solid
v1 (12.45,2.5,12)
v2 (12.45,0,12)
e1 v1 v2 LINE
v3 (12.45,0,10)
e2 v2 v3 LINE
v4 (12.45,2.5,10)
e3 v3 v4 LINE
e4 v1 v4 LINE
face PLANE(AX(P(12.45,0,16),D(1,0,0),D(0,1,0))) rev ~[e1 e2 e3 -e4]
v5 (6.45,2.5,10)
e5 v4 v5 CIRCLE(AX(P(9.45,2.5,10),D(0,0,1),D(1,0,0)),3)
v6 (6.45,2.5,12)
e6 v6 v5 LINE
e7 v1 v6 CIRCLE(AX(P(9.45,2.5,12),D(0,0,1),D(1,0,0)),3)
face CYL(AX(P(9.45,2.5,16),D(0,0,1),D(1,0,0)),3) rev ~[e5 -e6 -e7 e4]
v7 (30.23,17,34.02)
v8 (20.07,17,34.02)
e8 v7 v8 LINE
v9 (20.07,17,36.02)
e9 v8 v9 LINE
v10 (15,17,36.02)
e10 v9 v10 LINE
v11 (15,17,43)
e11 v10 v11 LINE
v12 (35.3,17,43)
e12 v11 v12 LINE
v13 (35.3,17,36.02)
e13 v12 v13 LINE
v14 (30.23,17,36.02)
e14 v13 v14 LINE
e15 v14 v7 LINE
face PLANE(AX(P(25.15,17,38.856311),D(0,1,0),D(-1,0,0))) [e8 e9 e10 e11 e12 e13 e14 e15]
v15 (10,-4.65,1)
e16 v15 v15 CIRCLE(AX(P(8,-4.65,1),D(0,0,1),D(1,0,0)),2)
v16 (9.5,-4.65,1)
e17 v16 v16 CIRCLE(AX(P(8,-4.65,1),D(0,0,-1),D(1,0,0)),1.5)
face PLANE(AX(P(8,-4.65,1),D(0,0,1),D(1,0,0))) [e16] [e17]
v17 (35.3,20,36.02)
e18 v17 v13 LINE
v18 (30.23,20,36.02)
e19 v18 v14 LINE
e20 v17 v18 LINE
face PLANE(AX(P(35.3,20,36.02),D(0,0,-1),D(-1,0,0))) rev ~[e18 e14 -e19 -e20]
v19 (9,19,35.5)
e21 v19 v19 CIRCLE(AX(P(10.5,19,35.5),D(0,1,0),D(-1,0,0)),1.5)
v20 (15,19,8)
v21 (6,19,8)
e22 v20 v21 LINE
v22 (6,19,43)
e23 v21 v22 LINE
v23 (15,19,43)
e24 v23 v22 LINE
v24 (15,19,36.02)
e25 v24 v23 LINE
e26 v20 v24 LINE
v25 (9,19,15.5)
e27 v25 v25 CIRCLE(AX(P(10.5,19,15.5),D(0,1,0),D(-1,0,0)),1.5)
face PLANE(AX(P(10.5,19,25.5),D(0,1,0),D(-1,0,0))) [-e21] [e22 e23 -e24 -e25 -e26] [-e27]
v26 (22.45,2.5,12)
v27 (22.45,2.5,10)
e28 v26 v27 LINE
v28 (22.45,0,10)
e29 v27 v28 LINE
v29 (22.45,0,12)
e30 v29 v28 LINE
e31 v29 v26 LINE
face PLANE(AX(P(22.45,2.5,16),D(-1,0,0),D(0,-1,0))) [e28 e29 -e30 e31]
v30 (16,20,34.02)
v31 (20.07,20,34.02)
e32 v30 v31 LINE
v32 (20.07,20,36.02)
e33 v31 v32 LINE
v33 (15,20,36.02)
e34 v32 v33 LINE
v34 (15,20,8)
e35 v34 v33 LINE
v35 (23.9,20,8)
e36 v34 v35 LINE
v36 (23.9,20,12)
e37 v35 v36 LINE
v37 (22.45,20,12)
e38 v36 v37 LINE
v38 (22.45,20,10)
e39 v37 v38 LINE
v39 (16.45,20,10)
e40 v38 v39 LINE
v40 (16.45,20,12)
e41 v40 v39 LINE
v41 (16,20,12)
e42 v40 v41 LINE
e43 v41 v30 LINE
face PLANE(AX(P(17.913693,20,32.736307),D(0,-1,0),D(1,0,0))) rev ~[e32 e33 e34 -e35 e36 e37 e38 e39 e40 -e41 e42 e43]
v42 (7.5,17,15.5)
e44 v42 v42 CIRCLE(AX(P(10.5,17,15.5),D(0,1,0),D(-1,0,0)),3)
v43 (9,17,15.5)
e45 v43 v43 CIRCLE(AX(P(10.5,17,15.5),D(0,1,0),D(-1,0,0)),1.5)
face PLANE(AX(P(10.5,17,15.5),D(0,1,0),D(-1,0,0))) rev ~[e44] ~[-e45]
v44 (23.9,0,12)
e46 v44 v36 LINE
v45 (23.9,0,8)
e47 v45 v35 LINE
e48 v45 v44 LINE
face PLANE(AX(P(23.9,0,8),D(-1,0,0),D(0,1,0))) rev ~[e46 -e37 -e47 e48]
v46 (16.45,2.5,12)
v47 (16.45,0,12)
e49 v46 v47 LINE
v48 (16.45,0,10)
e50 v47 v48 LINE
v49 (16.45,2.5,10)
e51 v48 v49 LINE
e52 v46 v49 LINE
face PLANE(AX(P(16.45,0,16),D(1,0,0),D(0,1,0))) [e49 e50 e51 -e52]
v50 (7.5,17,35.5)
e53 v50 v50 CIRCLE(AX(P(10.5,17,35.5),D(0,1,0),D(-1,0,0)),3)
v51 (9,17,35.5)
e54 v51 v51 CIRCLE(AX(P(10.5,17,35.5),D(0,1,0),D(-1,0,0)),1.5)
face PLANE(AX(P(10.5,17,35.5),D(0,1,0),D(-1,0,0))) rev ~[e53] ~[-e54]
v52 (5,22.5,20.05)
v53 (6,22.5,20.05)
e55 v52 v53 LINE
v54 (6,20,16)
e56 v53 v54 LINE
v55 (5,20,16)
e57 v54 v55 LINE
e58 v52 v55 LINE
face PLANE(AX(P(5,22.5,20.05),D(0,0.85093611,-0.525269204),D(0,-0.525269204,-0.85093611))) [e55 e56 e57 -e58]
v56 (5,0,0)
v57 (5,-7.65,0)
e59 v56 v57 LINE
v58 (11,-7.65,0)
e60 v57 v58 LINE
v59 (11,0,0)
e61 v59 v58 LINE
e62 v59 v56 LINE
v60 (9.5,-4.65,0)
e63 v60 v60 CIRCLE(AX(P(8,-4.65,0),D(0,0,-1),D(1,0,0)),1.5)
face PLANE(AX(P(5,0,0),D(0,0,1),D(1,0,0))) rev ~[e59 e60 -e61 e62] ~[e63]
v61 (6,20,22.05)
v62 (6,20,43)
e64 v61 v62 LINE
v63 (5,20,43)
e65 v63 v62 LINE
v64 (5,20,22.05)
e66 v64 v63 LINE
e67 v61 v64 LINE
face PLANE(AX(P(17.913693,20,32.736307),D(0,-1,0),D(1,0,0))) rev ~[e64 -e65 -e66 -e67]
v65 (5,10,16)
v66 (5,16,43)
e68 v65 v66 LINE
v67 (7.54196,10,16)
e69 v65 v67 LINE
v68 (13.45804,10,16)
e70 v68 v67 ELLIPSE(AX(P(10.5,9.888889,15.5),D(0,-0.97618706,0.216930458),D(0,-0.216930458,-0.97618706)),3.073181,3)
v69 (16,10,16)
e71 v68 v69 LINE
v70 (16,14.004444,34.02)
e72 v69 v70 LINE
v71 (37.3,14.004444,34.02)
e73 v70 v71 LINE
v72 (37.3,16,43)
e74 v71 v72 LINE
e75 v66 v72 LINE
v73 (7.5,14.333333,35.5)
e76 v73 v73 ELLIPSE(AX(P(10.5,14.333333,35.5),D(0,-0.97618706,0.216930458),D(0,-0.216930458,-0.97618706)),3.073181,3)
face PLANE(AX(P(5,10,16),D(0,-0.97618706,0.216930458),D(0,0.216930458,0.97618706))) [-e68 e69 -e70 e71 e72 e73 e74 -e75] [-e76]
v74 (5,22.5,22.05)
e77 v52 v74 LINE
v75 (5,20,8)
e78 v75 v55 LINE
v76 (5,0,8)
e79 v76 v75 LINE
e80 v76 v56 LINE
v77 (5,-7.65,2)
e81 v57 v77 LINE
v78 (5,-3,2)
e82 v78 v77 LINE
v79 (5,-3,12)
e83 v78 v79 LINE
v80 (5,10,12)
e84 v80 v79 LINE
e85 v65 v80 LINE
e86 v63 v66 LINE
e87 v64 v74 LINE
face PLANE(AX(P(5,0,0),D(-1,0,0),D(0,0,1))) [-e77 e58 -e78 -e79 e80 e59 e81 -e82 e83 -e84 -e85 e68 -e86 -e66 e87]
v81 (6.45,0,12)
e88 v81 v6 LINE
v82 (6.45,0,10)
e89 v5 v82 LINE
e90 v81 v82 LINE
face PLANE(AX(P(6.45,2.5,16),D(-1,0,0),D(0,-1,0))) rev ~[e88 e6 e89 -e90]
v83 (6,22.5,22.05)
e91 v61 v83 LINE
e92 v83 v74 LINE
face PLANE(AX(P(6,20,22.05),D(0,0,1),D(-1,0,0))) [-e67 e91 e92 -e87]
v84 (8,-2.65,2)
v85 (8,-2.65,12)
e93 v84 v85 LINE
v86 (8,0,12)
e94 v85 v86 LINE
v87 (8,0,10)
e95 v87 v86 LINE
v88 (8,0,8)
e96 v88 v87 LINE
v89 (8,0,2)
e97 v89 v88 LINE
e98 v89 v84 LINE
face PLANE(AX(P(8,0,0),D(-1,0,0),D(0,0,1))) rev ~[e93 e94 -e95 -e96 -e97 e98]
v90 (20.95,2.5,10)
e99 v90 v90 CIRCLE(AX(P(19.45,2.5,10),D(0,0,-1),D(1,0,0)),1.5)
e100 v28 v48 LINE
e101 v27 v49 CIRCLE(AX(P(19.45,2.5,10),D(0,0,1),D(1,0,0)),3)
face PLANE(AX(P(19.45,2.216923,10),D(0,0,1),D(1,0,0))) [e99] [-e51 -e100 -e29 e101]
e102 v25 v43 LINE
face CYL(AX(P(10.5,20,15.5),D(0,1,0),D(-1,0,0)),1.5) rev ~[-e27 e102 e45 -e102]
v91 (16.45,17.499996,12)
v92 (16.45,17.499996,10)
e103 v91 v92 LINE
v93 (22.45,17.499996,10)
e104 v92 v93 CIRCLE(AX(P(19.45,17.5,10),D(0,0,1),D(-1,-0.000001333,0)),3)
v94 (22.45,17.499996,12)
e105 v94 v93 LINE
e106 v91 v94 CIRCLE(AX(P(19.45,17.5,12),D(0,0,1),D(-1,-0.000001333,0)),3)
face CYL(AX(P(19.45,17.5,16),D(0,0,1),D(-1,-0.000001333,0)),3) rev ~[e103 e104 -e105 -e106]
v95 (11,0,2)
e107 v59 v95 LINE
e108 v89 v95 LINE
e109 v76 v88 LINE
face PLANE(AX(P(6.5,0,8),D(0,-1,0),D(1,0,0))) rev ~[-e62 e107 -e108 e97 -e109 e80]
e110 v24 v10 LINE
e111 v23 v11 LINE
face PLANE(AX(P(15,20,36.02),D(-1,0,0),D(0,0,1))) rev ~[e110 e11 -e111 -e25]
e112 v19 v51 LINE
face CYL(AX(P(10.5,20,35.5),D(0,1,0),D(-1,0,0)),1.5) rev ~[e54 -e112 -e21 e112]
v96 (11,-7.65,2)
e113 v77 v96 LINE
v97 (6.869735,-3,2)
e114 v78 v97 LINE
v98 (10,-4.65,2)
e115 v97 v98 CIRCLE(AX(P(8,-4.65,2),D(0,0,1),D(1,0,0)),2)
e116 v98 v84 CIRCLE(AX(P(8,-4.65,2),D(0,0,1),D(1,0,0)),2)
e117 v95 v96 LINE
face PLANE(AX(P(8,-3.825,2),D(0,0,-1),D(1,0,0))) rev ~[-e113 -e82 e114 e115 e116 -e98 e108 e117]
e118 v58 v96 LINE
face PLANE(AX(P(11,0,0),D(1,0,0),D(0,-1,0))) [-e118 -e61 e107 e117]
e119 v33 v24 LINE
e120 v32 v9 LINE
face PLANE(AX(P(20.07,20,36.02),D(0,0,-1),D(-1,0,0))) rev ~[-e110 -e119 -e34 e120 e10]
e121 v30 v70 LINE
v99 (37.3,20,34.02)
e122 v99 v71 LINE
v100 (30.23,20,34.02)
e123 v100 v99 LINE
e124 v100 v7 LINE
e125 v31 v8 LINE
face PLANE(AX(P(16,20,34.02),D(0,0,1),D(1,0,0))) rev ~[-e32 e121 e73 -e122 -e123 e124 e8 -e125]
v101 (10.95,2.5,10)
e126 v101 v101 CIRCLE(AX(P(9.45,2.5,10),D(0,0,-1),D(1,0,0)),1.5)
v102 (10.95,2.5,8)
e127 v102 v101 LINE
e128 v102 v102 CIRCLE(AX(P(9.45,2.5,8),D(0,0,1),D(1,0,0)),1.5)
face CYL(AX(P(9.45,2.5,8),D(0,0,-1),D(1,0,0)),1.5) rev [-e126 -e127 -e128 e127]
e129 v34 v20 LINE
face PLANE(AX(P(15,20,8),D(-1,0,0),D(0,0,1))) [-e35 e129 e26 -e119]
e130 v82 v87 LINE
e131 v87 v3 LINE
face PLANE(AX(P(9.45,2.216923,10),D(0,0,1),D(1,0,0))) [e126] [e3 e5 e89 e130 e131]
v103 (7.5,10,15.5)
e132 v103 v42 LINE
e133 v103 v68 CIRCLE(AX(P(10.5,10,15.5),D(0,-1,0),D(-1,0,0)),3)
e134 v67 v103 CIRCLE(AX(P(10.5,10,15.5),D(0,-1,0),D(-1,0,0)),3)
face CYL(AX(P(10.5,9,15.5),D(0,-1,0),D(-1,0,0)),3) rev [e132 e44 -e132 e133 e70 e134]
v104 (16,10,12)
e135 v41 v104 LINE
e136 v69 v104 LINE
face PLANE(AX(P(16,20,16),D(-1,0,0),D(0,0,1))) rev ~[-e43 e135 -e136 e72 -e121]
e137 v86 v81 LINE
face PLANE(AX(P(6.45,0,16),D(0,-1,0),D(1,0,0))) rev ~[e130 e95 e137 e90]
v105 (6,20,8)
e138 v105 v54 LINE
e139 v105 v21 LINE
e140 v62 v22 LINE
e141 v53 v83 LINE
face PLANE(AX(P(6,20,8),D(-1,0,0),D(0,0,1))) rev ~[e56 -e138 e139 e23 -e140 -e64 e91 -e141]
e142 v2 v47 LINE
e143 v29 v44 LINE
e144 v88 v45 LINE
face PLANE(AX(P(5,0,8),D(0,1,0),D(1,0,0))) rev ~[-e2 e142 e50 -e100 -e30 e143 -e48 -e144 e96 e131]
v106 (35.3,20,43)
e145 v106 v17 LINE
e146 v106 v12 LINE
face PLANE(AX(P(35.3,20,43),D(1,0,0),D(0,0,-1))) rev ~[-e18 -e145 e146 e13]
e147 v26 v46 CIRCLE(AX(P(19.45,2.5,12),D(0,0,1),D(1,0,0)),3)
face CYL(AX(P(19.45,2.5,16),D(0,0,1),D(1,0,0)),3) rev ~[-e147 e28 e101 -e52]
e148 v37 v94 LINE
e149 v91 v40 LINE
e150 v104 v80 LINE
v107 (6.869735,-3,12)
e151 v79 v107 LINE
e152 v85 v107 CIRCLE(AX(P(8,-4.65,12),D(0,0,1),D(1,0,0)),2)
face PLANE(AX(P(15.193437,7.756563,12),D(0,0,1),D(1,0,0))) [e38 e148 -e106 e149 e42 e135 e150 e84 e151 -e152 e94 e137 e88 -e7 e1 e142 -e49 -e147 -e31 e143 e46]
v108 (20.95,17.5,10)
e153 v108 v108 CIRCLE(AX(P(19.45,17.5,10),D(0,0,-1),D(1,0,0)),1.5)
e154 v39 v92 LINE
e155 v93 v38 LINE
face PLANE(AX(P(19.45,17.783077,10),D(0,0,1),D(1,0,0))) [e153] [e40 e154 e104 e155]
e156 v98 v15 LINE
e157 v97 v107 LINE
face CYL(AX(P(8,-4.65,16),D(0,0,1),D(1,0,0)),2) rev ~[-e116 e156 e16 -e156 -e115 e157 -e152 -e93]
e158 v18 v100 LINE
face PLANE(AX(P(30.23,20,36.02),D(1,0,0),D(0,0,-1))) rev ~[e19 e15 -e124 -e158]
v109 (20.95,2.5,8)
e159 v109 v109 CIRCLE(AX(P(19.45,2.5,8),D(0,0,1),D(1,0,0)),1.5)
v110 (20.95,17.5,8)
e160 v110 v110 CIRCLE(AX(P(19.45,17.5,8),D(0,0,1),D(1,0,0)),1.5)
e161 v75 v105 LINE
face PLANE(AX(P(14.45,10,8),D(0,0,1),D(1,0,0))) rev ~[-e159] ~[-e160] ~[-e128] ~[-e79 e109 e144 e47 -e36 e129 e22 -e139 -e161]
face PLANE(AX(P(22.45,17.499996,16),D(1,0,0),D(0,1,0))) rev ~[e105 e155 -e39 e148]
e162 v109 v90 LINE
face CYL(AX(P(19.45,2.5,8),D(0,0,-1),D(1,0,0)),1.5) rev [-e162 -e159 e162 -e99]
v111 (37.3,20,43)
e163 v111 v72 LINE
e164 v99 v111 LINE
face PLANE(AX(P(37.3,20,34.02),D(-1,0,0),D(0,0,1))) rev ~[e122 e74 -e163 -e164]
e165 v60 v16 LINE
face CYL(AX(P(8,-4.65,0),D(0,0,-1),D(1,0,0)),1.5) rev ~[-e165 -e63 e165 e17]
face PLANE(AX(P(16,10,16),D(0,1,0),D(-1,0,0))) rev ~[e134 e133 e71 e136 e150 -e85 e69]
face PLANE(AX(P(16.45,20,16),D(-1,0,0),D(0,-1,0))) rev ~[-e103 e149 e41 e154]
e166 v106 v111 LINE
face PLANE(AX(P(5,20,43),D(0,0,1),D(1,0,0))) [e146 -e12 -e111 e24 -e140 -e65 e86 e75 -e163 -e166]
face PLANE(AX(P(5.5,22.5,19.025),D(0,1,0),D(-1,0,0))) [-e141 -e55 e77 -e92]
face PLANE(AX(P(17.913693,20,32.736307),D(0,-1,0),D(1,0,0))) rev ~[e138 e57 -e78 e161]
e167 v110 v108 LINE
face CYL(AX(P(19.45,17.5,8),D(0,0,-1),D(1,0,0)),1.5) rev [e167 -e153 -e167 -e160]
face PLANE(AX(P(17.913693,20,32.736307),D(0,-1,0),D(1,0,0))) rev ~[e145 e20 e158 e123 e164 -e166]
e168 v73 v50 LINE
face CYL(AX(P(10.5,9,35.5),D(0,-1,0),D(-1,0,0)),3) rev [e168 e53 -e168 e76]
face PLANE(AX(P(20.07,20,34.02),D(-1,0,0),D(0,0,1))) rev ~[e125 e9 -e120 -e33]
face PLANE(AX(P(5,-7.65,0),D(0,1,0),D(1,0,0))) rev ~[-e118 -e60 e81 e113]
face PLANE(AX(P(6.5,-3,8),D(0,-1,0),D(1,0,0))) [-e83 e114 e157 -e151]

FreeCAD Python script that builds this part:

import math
import FreeCAD as App
import Part
import Sketcher
Q = App.Units.Quantity

doc = App.newDocument("Part")
body = doc.addObject("PartDesign::Body", "Body")

sketch1 = body.newObject("Sketcher::SketchObject", "Sketch")
sketch1.AttachmentSupport = (doc.getObject("XY_Plane"), [""])
sketch1.MapMode = "FlatFace"
sketch1.AttachmentOffset = App.Placement(App.Vector(0, 0, 8), App.Rotation())
sketch1.addGeometry(Part.LineSegment(App.Vector(5, 20, 0), App.Vector(5, 0, 0)), False)
sketch1.addGeometry(Part.LineSegment(App.Vector(5, 0, 0), App.Vector(23.9, 0, 0)), False)
sketch1.addGeometry(Part.LineSegment(App.Vector(23.9, 0, 0), App.Vector(23.9, 20, 0)), False)
sketch1.addGeometry(Part.LineSegment(App.Vector(23.9, 20, 0), App.Vector(5, 20, 0)), False)
sketch1.addGeometry(Part.Circle(App.Vector(9.4, 2.5, 0), App.Vector(0, 0, 1), 1.5), False)
sketch1.addGeometry(Part.Circle(App.Vector(19.4, 2.5, 0), App.Vector(0, 0, 1), 1.5), False)
sketch1.addGeometry(Part.Circle(App.Vector(19.4, 17.5, 0), App.Vector(0, 0, 1), 1.5), False)
sketch1.addConstraint(Sketcher.Constraint("Coincident", 0, 2, 1, 1))
sketch1.addConstraint(Sketcher.Constraint("Coincident", 1, 2, 2, 1))
sketch1.addConstraint(Sketcher.Constraint("Coincident", 2, 2, 3, 1))
sketch1.addConstraint(Sketcher.Constraint("Coincident", 3, 2, 0, 1))
sketch1.addConstraint(Sketcher.Constraint("Vertical", 0))
sketch1.addConstraint(Sketcher.Constraint("Horizontal", 1))
sketch1.addConstraint(Sketcher.Constraint("Vertical", 2))
sketch1.addConstraint(Sketcher.Constraint("Horizontal", 3))
sketch1.addConstraint(Sketcher.Constraint("Equal", 4, 5))
sketch1.addConstraint(Sketcher.Constraint("Equal", 5, 6))
sketch1.addConstraint(Sketcher.Constraint("PointOnObject", 0, 2, -1))
sketch1.addConstraint(Sketcher.Constraint("Horizontal", 4, 3, 5, 3))
sketch1.addConstraint(Sketcher.Constraint("Vertical", 5, 3, 6, 3))
sketch1.addConstraint(Sketcher.Constraint("Diameter", 4, Q("3 mm")))
sketch1.addConstraint(Sketcher.Constraint("DistanceY", 0, 2, 0, 1, Q("20 mm")))
sketch1.addConstraint(Sketcher.Constraint("DistanceX", 1, 1, 1, 2, Q("18.9 mm")))
sketch1.addConstraint(Sketcher.Constraint("DistanceX", -1, 1, 0, 2, Q("5 mm")))
sketch1.addConstraint(Sketcher.Constraint("DistanceX", 4, 3, 5, 3, Q("10 mm")))
sketch1.addConstraint(Sketcher.Constraint("DistanceY", 5, 3, 6, 3, Q("15 mm")))
sketch1.addConstraint(Sketcher.Constraint("DistanceY", -1, 1, 4, 3, Q("2.5 mm")))
sketch1.addConstraint(Sketcher.Constraint("DistanceX", -1, 1, 4, 3, Q("9.45 mm")))
pad1 = body.newObject("PartDesign::Pad", "Pad")
pad1.Profile = sketch1
pad1.Length = 8

sketch2 = body.newObject("Sketcher::SketchObject", "Sketch001")
sketch2.AttachmentSupport = (doc.getObject("XZ_Plane"), [""])
sketch2.MapMode = "FlatFace"
sketch2.addGeometry(Part.LineSegment(App.Vector(5, 16, 0), App.Vector(5, 0, 0)), False)
sketch2.addGeometry(Part.LineSegment(App.Vector(5, 0, 0), App.Vector(8, 0, 0)), False)
sketch2.addGeometry(Part.LineSegment(App.Vector(8, 0, 0), App.Vector(8, 16, 0)), False)
sketch2.addGeometry(Part.LineSegment(App.Vector(8, 16, 0), App.Vector(5, 16, 0)), False)
sketch2.addConstraint(Sketcher.Constraint("Coincident", 0, 2, 1, 1))
sketch2.addConstraint(Sketcher.Constraint("Coincident", 1, 2, 2, 1))
sketch2.addConstraint(Sketcher.Constraint("Coincident", 2, 2, 3, 1))
sketch2.addConstraint(Sketcher.Constraint("Coincident", 3, 2, 0, 1))
sketch2.addConstraint(Sketcher.Constraint("Vertical", 0))
sketch2.addConstraint(Sketcher.Constraint("Horizontal", 1))
sketch2.addConstraint(Sketcher.Constraint("Vertical", 2))
sketch2.addConstraint(Sketcher.Constraint("Horizontal", 3))
sketch2.addConstraint(Sketcher.Constraint("PointOnObject", 0, 2, -1))
sketch2.addConstraint(Sketcher.Constraint("DistanceX", 1, 1, 1, 2, Q("3 mm")))
sketch2.addConstraint(Sketcher.Constraint("DistanceY", 0, 2, 0, 1, Q("16 mm")))
sketch2.addConstraint(Sketcher.Constraint("DistanceX", -1, 1, 0, 2, Q("5 mm")))
pad2 = body.newObject("PartDesign::Pad", "Pad001")
pad2.Profile = sketch2
pad2.Length = 3

sketch3 = body.newObject("Sketcher::SketchObject", "Sketch002")
sketch3.AttachmentSupport = (doc.getObject("XY_Plane"), [""])
sketch3.MapMode = "FlatFace"
sketch3.addGeometry(Part.LineSegment(App.Vector(5, -7.7, 0), App.Vector(5, 0, 0)), False)
sketch3.addGeometry(Part.LineSegment(App.Vector(5, 0, 0), App.Vector(11, 0, 0)), False)
sketch3.addGeometry(Part.LineSegment(App.Vector(11, 0, 0), App.Vector(11, -7.7, 0)), False)
sketch3.addGeometry(Part.LineSegment(App.Vector(11, -7.7, 0), App.Vector(5, -7.7, 0)), False)
sketch3.addGeometry(Part.Circle(App.Vector(8, -4.7, 0), App.Vector(0, 0, 1), 1.5), False)
sketch3.addConstraint(Sketcher.Constraint("Coincident", 0, 2, 1, 1))
sketch3.addConstraint(Sketcher.Constraint("Coincident", 1, 2, 2, 1))
sketch3.addConstraint(Sketcher.Constraint("Coincident", 2, 2, 3, 1))
sketch3.addConstraint(Sketcher.Constraint("Coincident", 3, 2, 0, 1))
sketch3.addConstraint(Sketcher.Constraint("Vertical", 0))
sketch3.addConstraint(Sketcher.Constraint("Horizontal", 1))
sketch3.addConstraint(Sketcher.Constraint("Vertical", 2))
sketch3.addConstraint(Sketcher.Constraint("Horizontal", 3))
sketch3.addConstraint(Sketcher.Constraint("PointOnObject", 0, 2, -1))
sketch3.addConstraint(Sketcher.Constraint("Diameter", 4, Q("3 mm")))
sketch3.addConstraint(Sketcher.Constraint("DistanceX", 1, 1, 1, 2, Q("6 mm")))
sketch3.addConstraint(Sketcher.Constraint("DistanceX", -1, 1, 4, 3, Q("8 mm")))
sketch3.addConstraint(Sketcher.Constraint("DistanceX", -1, 1, 0, 2, Q("5 mm")))
sketch3.addConstraint(Sketcher.Constraint("DistanceY", 2, 2, 4, 3, Q("3 mm")))
sketch3.addConstraint(Sketcher.Constraint("DistanceY", 0, 1, 0, 2, Q("7.65 mm")))
pad3 = body.newObject("PartDesign::Pad", "Pad002")
pad3.Profile = sketch3
pad3.Length = 2

sketch4 = body.newObject("Sketcher::SketchObject", "Sketch003")
sketch4.AttachmentSupport = (doc.getObject("XY_Plane"), [""])
sketch4.MapMode = "FlatFace"
sketch4.AttachmentOffset = App.Placement(App.Vector(0, 0, 16), App.Rotation())
sketch4.addGeometry(Part.Circle(App.Vector(8, -4.7, 0), App.Vector(0, 0, 1), 2), False)
sketch4.addConstraint(Sketcher.Constraint("Diameter", 0, Q("4 mm")))
sketch4.addConstraint(Sketcher.Constraint("DistanceX", -1, 1, 0, 3, Q("8 mm")))
sketch4.addConstraint(Sketcher.Constraint("DistanceY", 0, 3, -1, 1, Q("4.65 mm")))
pocket1 = body.newObject("PartDesign::Pocket", "Pocket")
pocket1.Profile = sketch4
pocket1.Length = 15

sketch5 = body.newObject("Sketcher::SketchObject", "Sketch004")
sketch5.AttachmentSupport = (doc.getObject("XZ_Plane"), [""])
sketch5.MapMode = "FlatFace"
sketch5.AttachmentOffset = App.Placement(App.Vector(0, 0, -20), App.Rotation())
sketch5.addGeometry(Part.LineSegment(App.Vector(16, 16, 0), App.Vector(5, 16, 0)), False)
sketch5.addGeometry(Part.LineSegment(App.Vector(5, 16, 0), App.Vector(5, 43, 0)), False)
sketch5.addGeometry(Part.LineSegment(App.Vector(5, 43, 0), App.Vector(37, 43, 0)), False)
sketch5.addGeometry(Part.LineSegment(App.Vector(37, 43, 0), App.Vector(37, 34, 0)), False)
sketch5.addGeometry(Part.LineSegment(App.Vector(37, 34, 0), App.Vector(16, 34, 0)), False)
sketch5.addGeometry(Part.LineSegment(App.Vector(16, 34, 0), App.Vector(16, 16, 0)), False)
sketch5.addConstraint(Sketcher.Constraint("Coincident", 0, 2, 1, 1))
sketch5.addConstraint(Sketcher.Constraint("Coincident", 1, 2, 2, 1))
sketch5.addConstraint(Sketcher.Constraint("Coincident", 2, 2, 3, 1))
sketch5.addConstraint(Sketcher.Constraint("Coincident", 3, 2, 4, 1))
sketch5.addConstraint(Sketcher.Constraint("Coincident", 4, 2, 5, 1))
sketch5.addConstraint(Sketcher.Constraint("Coincident", 5, 2, 0, 1))
sketch5.addConstraint(Sketcher.Constraint("Horizontal", 0))
sketch5.addConstraint(Sketcher.Constraint("Vertical", 1))
sketch5.addConstraint(Sketcher.Constraint("Horizontal", 2))
sketch5.addConstraint(Sketcher.Constraint("Vertical", 3))
sketch5.addConstraint(Sketcher.Constraint("Horizontal", 4))
sketch5.addConstraint(Sketcher.Constraint("Vertical", 5))
sketch5.addConstraint(Sketcher.Constraint("DistanceX", 0, 2, 0, 1, Q("11 mm")))
sketch5.addConstraint(Sketcher.Constraint("DistanceY", 1, 1, 1, 2, Q("27 mm")))
sketch5.addConstraint(Sketcher.Constraint("DistanceX", 2, 1, 2, 2, Q("32.3 mm")))
sketch5.addConstraint(Sketcher.Constraint("DistanceX", -1, 1, 0, 2, Q("5 mm")))
sketch5.addConstraint(Sketcher.Constraint("DistanceY", -1, 1, 0, 2, Q("16 mm")))
sketch5.addConstraint(Sketcher.Constraint("DistanceY", 3, 2, 3, 1, Q("8.98 mm")))
pad4 = body.newObject("PartDesign::Pad", "Pad003")
pad4.Profile = sketch5
pad4.Length = 10

sketch6 = body.newObject("Sketcher::SketchObject", "Sketch005")
sketch6.AttachmentSupport = (doc.getObject("XZ_Plane"), [""])
sketch6.MapMode = "FlatFace"
sketch6.AttachmentOffset = App.Placement(App.Vector(0, 0, -20), App.Rotation())
sketch6.addGeometry(Part.Circle(App.Vector(10.5, 15.5, 0), App.Vector(0, 0, 1), 1.5), False)
sketch6.addGeometry(Part.Circle(App.Vector(10.5, 35.5, 0), App.Vector(0, 0, 1), 1.5), False)
sketch6.addConstraint(Sketcher.Constraint("Equal", 0, 1))
sketch6.addConstraint(Sketcher.Constraint("Vertical", 0, 3, 1, 3))
sketch6.addConstraint(Sketcher.Constraint("Diameter", 0, Q("3 mm")))
sketch6.addConstraint(Sketcher.Constraint("DistanceY", 0, 3, 1, 3, Q("20 mm")))
sketch6.addConstraint(Sketcher.Constraint("DistanceX", -1, 1, 0, 3, Q("10.5 mm")))
sketch6.addConstraint(Sketcher.Constraint("DistanceY", -1, 1, 0, 3, Q("15.5 mm")))
pocket2 = body.newObject("PartDesign::Pocket", "Pocket001")
pocket2.Profile = sketch6
pocket2.Length = 10
pocket2.Reversed = True

sketch7 = body.newObject("Sketcher::SketchObject", "Sketch006")
sketch7.AttachmentSupport = (doc.getObject("XZ_Plane"), [""])
sketch7.MapMode = "FlatFace"
sketch7.AttachmentOffset = App.Placement(App.Vector(0, 0, -20), App.Rotation())
sketch7.addGeometry(Part.LineSegment(App.Vector(15, 43, 0), App.Vector(15, 8, 0)), False)
sketch7.addGeometry(Part.LineSegment(App.Vector(15, 8, 0), App.Vector(6, 8, 0)), False)
sketch7.addGeometry(Part.LineSegment(App.Vector(6, 8, 0), App.Vector(6, 43, 0)), False)
sketch7.addGeometry(Part.LineSegment(App.Vector(6, 43, 0), App.Vector(15, 43, 0)), False)
sketch7.addConstraint(Sketcher.Constraint("Coincident", 0, 2, 1, 1))
sketch7.addConstraint(Sketcher.Constraint("Coincident", 1, 2, 2, 1))
sketch7.addConstraint(Sketcher.Constraint("Coincident", 2, 2, 3, 1))
sketch7.addConstraint(Sketcher.Constraint("Coincident", 3, 2, 0, 1))
sketch7.addConstraint(Sketcher.Constraint("Vertical", 0))
sketch7.addConstraint(Sketcher.Constraint("Horizontal", 1))
sketch7.addConstraint(Sketcher.Constraint("Vertical", 2))
sketch7.addConstraint(Sketcher.Constraint("Horizontal", 3))
sketch7.addConstraint(Sketcher.Constraint("DistanceX", 1, 2, 1, 1, Q("9 mm")))
sketch7.addConstraint(Sketcher.Constraint("DistanceY", 0, 2, 0, 1, Q("35 mm")))
sketch7.addConstraint(Sketcher.Constraint("DistanceX", -1, 1, 0, 2, Q("15 mm")))
sketch7.addConstraint(Sketcher.Constraint("DistanceY", -1, 1, 0, 2, Q("8 mm")))
pocket3 = body.newObject("PartDesign::Pocket", "Pocket002")
pocket3.Profile = sketch7
pocket3.Length = 1
pocket3.Reversed = True

sketch8 = body.newObject("Sketcher::SketchObject", "Sketch007")
sketch8.AttachmentSupport = (doc.getObject("XZ_Plane"), [""])
sketch8.MapMode = "FlatFace"
sketch8.AttachmentOffset = App.Placement(App.Vector(0, 0, -20), App.Rotation())
sketch8.addGeometry(Part.LineSegment(App.Vector(15, 43, 0), App.Vector(35.3, 43, 0)), False)
sketch8.addGeometry(Part.LineSegment(App.Vector(35.3, 43, 0), App.Vector(35.3, 36, 0)), False)
sketch8.addGeometry(Part.LineSegment(App.Vector(35.3, 36, 0), App.Vector(30.2, 36, 0)), False)
sketch8.addGeometry(Part.LineSegment(App.Vector(30.2, 36, 0), App.Vector(30.2, 34, 0)), False)
sketch8.addGeometry(Part.LineSegment(App.Vector(30.2, 34, 0), App.Vector(20.1, 34, 0)), False)
sketch8.addGeometry(Part.LineSegment(App.Vector(20.1, 34, 0), App.Vector(20.1, 36, 0)), False)
sketch8.addGeometry(Part.LineSegment(App.Vector(20.1, 36, 0), App.Vector(15, 36, 0)), False)
sketch8.addGeometry(Part.LineSegment(App.Vector(15, 36, 0), App.Vector(15, 43, 0)), False)
sketch8.addConstraint(Sketcher.Constraint("Coincident", 0, 2, 1, 1))
sketch8.addConstraint(Sketcher.Constraint("Coincident", 1, 2, 2, 1))
sketch8.addConstraint(Sketcher.Constraint("Coincident", 2, 2, 3, 1))
sketch8.addConstraint(Sketcher.Constraint("Coincident", 3, 2, 4, 1))
sketch8.addConstraint(Sketcher.Constraint("Coincident", 4, 2, 5, 1))
sketch8.addConstraint(Sketcher.Constraint("Coincident", 5, 2, 6, 1))
sketch8.addConstraint(Sketcher.Constraint("Coincident", 6, 2, 7, 1))
sketch8.addConstraint(Sketcher.Constraint("Coincident", 7, 2, 0, 1))
sketch8.addConstraint(Sketcher.Constraint("Horizontal", 0))
sketch8.addConstraint(Sketcher.Constraint("Vertical", 1))
sketch8.addConstraint(Sketcher.Constraint("Horizontal", 2))
sketch8.addConstraint(Sketcher.Constraint("Vertical", 3))
sketch8.addConstraint(Sketcher.Constraint("Horizontal", 4))
sketch8.addConstraint(Sketcher.Constraint("Vertical", 5))
sketch8.addConstraint(Sketcher.Constraint("Horizontal", 6))
sketch8.addConstraint(Sketcher.Constraint("Vertical", 7))
sketch8.addConstraint(Sketcher.Constraint("Horizontal", 2, 2, 5, 2))
sketch8.addConstraint(Sketcher.Constraint("Equal", 2, 6))
sketch8.addConstraint(Sketcher.Constraint("DistanceY", 3, 2, 3, 1, Q("2 mm")))
sketch8.addConstraint(Sketcher.Constraint("DistanceX", 0, 1, 0, 2, Q("20.3 mm")))
sketch8.addConstraint(Sketcher.Constraint("DistanceY", -1, 1, 0, 2, Q("43 mm")))
sketch8.addConstraint(Sketcher.Constraint("DistanceX", -1, 1, 6, 2, Q("15 mm")))
sketch8.addConstraint(Sketcher.Constraint("DistanceX", 2, 2, 2, 1, Q("5.07 mm")))
sketch8.addConstraint(Sketcher.Constraint("DistanceY", 1, 2, 1, 1, Q("6.98 mm")))
pocket4 = body.newObject("PartDesign::Pocket", "Pocket003")
pocket4.Profile = sketch8
pocket4.Length = 3
pocket4.Reversed = True

sketch9 = body.newObject("Sketcher::SketchObject", "Sketch008")
sketch9.AttachmentSupport = (doc.getObject("XZ_Plane"), [""])
sketch9.MapMode = "FlatFace"
sketch9.AttachmentOffset = App.Placement(App.Vector(0, 0, -20), App.Rotation())
sketch9.addGeometry(Part.LineSegment(App.Vector(6, 22.1, 0), App.Vector(6, 16, 0)), False)
sketch9.addGeometry(Part.LineSegment(App.Vector(6, 16, 0), App.Vector(5, 16, 0)), False)
sketch9.addGeometry(Part.LineSegment(App.Vector(5, 16, 0), App.Vector(5, 22.1, 0)), False)
sketch9.addGeometry(Part.LineSegment(App.Vector(5, 22.1, 0), App.Vector(6, 22.1, 0)), False)
sketch9.addConstraint(Sketcher.Constraint("Coincident", 0, 2, 1, 1))
sketch9.addConstraint(Sketcher.Constraint("Coincident", 1, 2, 2, 1))
sketch9.addConstraint(Sketcher.Constraint("Coincident", 2, 2, 3, 1))
sketch9.addConstraint(Sketcher.Constraint("Coincident", 3, 2, 0, 1))
sketch9.addConstraint(Sketcher.Constraint("Vertical", 0))
sketch9.addConstraint(Sketcher.Constraint("Horizontal", 1))
sketch9.addConstraint(Sketcher.Constraint("Vertical", 2))
sketch9.addConstraint(Sketcher.Constraint("Horizontal", 3))
sketch9.addConstraint(Sketcher.Constraint("DistanceX", 1, 2, 1, 1, Q("1 mm")))
sketch9.addConstraint(Sketcher.Constraint("DistanceX", -1, 1, 0, 2, Q("6 mm")))
sketch9.addConstraint(Sketcher.Constraint("DistanceY", -1, 1, 0, 2, Q("16 mm")))
sketch9.addConstraint(Sketcher.Constraint("DistanceY", 0, 2, 0, 1, Q("6.05 mm")))
pad5 = body.newObject("PartDesign::Pad", "Pad004")
pad5.Profile = sketch9
pad5.Length = 2.5
pad5.Reversed = True

sketch10 = body.newObject("Sketcher::SketchObject", "Sketch009")
sketch10.AttachmentSupport = (doc.getObject("YZ_Plane"), [""])
sketch10.MapMode = "FlatFace"
sketch10.AttachmentOffset = App.Placement(App.Vector(0, 0, 5), App.Rotation())
sketch10.addGeometry(Part.LineSegment(App.Vector(20, 16, 0), App.Vector(22.5, 20.1, 0)), False)
sketch10.addGeometry(Part.LineSegment(App.Vector(22.5, 20.1, 0), App.Vector(22.5, 16, 0)), False)
sketch10.addGeometry(Part.LineSegment(App.Vector(22.5, 16, 0), App.Vector(20, 16, 0)), False)
sketch10.addConstraint(Sketcher.Constraint("Coincident", 0, 2, 1, 1))
sketch10.addConstraint(Sketcher.Constraint("Coincident", 1, 2, 2, 1))
sketch10.addConstraint(Sketcher.Constraint("Coincident", 2, 2, 0, 1))
sketch10.addConstraint(Sketcher.Constraint("Vertical", 1))
sketch10.addConstraint(Sketcher.Constraint("Horizontal", 2))
sketch10.addConstraint(Sketcher.Constraint("DistanceX", 2, 2, 2, 1, Q("2.5 mm")))
sketch10.addConstraint(Sketcher.Constraint("DistanceY", -1, 1, 1, 2, Q("16 mm")))
sketch10.addConstraint(Sketcher.Constraint("DistanceX", -1, 1, 2, 2, Q("20 mm")))
sketch10.addConstraint(Sketcher.Constraint("DistanceY", 1, 2, 1, 1, Q("4.05 mm")))
pocket5 = body.newObject("PartDesign::Pocket", "Pocket004")
pocket5.Profile = sketch10
pocket5.Type = "ThroughAll"
pocket5.Reversed = True

sketch11 = body.newObject("Sketcher::SketchObject", "Sketch010")
sketch11.AttachmentSupport = (doc.getObject("YZ_Plane"), [""])
sketch11.MapMode = "FlatFace"
sketch11.AttachmentOffset = App.Placement(App.Vector(0, 0, 5), App.Rotation())
sketch11.addGeometry(Part.LineSegment(App.Vector(16, 43, 0), App.Vector(10, 16, 0)), False)
sketch11.addGeometry(Part.LineSegment(App.Vector(10, 16, 0), App.Vector(10, 43, 0)), False)
sketch11.addGeometry(Part.LineSegment(App.Vector(10, 43, 0), App.Vector(16, 43, 0)), False)
sketch11.addConstraint(Sketcher.Constraint("Coincident", 0, 2, 1, 1))
sketch11.addConstraint(Sketcher.Constraint("Coincident", 1, 2, 2, 1))
sketch11.addConstraint(Sketcher.Constraint("Coincident", 2, 2, 0, 1))
sketch11.addConstraint(Sketcher.Constraint("Vertical", 1))
sketch11.addConstraint(Sketcher.Constraint("Horizontal", 2))
sketch11.addConstraint(Sketcher.Constraint("DistanceX", 2, 1, 2, 2, Q("6 mm")))
sketch11.addConstraint(Sketcher.Constraint("DistanceY", 1, 1, 1, 2, Q("27 mm")))
sketch11.addConstraint(Sketcher.Constraint("DistanceX", -1, 1, 0, 2, Q("10 mm")))
sketch11.addConstraint(Sketcher.Constraint("DistanceY", -1, 1, 0, 2, Q("16 mm")))
pocket6 = body.newObject("PartDesign::Pocket", "Pocket005")
pocket6.Profile = sketch11
pocket6.Type = "ThroughAll"
pocket6.Reversed = True

sketch12 = body.newObject("Sketcher::SketchObject", "Sketch011")
sketch12.AttachmentSupport = (doc.getObject("XY_Plane"), [""])
sketch12.MapMode = "FlatFace"
sketch12.AttachmentOffset = App.Placement(App.Vector(0, 0, 16), App.Rotation())
sketch12.addGeometry(Part.ArcOfCircle(Part.Circle(App.Vector(19.4, 17.5, 0), App.Vector(0, 0, 1), 3), math.radians(-180), math.radians(0)), False)
sketch12.addGeometry(Part.LineSegment(App.Vector(22.4, 17.5, 0), App.Vector(22.4, 20, 0)), False)
sketch12.addGeometry(Part.LineSegment(App.Vector(22.4, 20, 0), App.Vector(16.4, 20, 0)), False)
sketch12.addGeometry(Part.LineSegment(App.Vector(16.4, 20, 0), App.Vector(16.4, 17.5, 0)), False)
sketch12.addGeometry(Part.ArcOfCircle(Part.Circle(App.Vector(19.4, 2.5, 0), App.Vector(0, 0, 1), 3), math.radians(0), math.radians(180)), False)
sketch12.addGeometry(Part.LineSegment(App.Vector(16.4, 2.5, 0), App.Vector(16.4, 0, 0)), False)
sketch12.addGeometry(Part.LineSegment(App.Vector(16.4, 0, 0), App.Vector(22.4, 0, 0)), False)
sketch12.addGeometry(Part.LineSegment(App.Vector(22.4, 0, 0), App.Vector(22.4, 2.5, 0)), False)
sketch12.addGeometry(Part.ArcOfCircle(Part.Circle(App.Vector(9.4, 2.5, 0), App.Vector(0, 0, 1), 3), math.radians(0), math.radians(180)), False)
sketch12.addGeometry(Part.LineSegment(App.Vector(6.5, 2.5, 0), App.Vector(6.5, 0, 0)), False)
sketch12.addGeometry(Part.LineSegment(App.Vector(6.5, 0, 0), App.Vector(12.4, 0, 0)), False)
sketch12.addGeometry(Part.LineSegment(App.Vector(12.4, 0, 0), App.Vector(12.4, 2.5, 0)), False)
sketch12.addConstraint(Sketcher.Constraint("Tangent", 0, 2, 1, 1))
sketch12.addConstraint(Sketcher.Constraint("Coincident", 1, 2, 2, 1))
sketch12.addConstraint(Sketcher.Constraint("Coincident", 2, 2, 3, 1))
sketch12.addConstraint(Sketcher.Constraint("Tangent", 3, 2, 0, 1))
sketch12.addConstraint(Sketcher.Constraint("Tangent", 4, 2, 5, 1))
sketch12.addConstraint(Sketcher.Constraint("Coincident", 5, 2, 6, 1))
sketch12.addConstraint(Sketcher.Constraint("Coincident", 6, 2, 7, 1))
sketch12.addConstraint(Sketcher.Constraint("Tangent", 7, 2, 4, 1))
sketch12.addConstraint(Sketcher.Constraint("Tangent", 8, 2, 9, 1))
sketch12.addConstraint(Sketcher.Constraint("Coincident", 9, 2, 10, 1))
sketch12.addConstraint(Sketcher.Constraint("Coincident", 10, 2, 11, 1))
sketch12.addConstraint(Sketcher.Constraint("Tangent", 11, 2, 8, 1))
sketch12.addConstraint(Sketcher.Constraint("Vertical", 1))
sketch12.addConstraint(Sketcher.Constraint("Horizontal", 2))
sketch12.addConstraint(Sketcher.Constraint("Vertical", 3))
sketch12.addConstraint(Sketcher.Constraint("Vertical", 5))
sketch12.addConstraint(Sketcher.Constraint("Horizontal", 6))
sketch12.addConstraint(Sketcher.Constraint("Vertical", 7))
sketch12.addConstraint(Sketcher.Constraint("Vertical", 9))
sketch12.addConstraint(Sketcher.Constraint("Horizontal", 10))
sketch12.addConstraint(Sketcher.Constraint("Vertical", 11))
sketch12.addConstraint(Sketcher.Constraint("Equal", 0, 4))
sketch12.addConstraint(Sketcher.Constraint("Equal", 4, 8))
sketch12.addConstraint(Sketcher.Constraint("PointOnObject", 5, 2, -1))
sketch12.addConstraint(Sketcher.Constraint("PointOnObject", 9, 2, -1))
sketch12.addConstraint(Sketcher.Constraint("Horizontal", 4, 3, 8, 3))
sketch12.addConstraint(Sketcher.Constraint("Vertical", 0, 3, 4, 3))
sketch12.addConstraint(Sketcher.Constraint("Radius", 0, Q("3 mm")))
sketch12.addConstraint(Sketcher.Constraint("DistanceY", 5, 2, 5, 1, Q("2.5 mm")))
sketch12.addConstraint(Sketcher.Constraint("DistanceY", -1, 1, 1, 2, Q("20 mm")))
sketch12.addConstraint(Sketcher.Constraint("DistanceY", 4, 3, 0, 3, Q("15 mm")))
sketch12.addConstraint(Sketcher.Constraint("DistanceX", 8, 3, 4, 3, Q("10 mm")))
sketch12.addConstraint(Sketcher.Constraint("DistanceX", -1, 1, 0, 3, Q("19.45 mm")))
pocket7 = body.newObject("PartDesign::Pocket", "Pocket006")
pocket7.Profile = sketch12
pocket7.Length = 6

sketch13 = body.newObject("Sketcher::SketchObject", "Sketch012")
sketch13.AttachmentSupport = (doc.getObject("XY_Plane"), [""])
sketch13.MapMode = "FlatFace"
sketch13.AttachmentOffset = App.Placement(App.Vector(0, 0, 16), App.Rotation())
sketch13.addGeometry(Part.LineSegment(App.Vector(23.9, 0, 0), App.Vector(23.9, 20, 0)), False)
sketch13.addGeometry(Part.LineSegment(App.Vector(23.9, 20, 0), App.Vector(16, 20, 0)), False)
sketch13.addGeometry(Part.LineSegment(App.Vector(16, 20, 0), App.Vector(16, 10, 0)), False)
sketch13.addGeometry(Part.LineSegment(App.Vector(16, 10, 0), App.Vector(5, 10, 0)), False)
sketch13.addGeometry(Part.LineSegment(App.Vector(5, 10, 0), App.Vector(5, -3, 0)), False)
sketch13.addGeometry(Part.LineSegment(App.Vector(5, -3, 0), App.Vector(8, -3, 0)), False)
sketch13.addGeometry(Part.LineSegment(App.Vector(8, -3, 0), App.Vector(8, 0, 0)), False)
sketch13.addGeometry(Part.LineSegment(App.Vector(8, 0, 0), App.Vector(23.9, 0, 0)), False)
sketch13.addConstraint(Sketcher.Constraint("Coincident", 0, 2, 1, 1))
sketch13.addConstraint(Sketcher.Constraint("Coincident", 1, 2, 2, 1))
sketch13.addConstraint(Sketcher.Constraint("Coincident", 2, 2, 3, 1))
sketch13.addConstraint(Sketcher.Constraint("Coincident", 3, 2, 4, 1))
sketch13.addConstraint(Sketcher.Constraint("Coincident", 4, 2, 5, 1))
sketch13.addConstraint(Sketcher.Constraint("Coincident", 5, 2, 6, 1))
sketch13.addConstraint(Sketcher.Constraint("Coincident", 6, 2, 7, 1))
sketch13.addConstraint(Sketcher.Constraint("Coincident", 7, 2, 0, 1))
sketch13.addConstraint(Sketcher.Constraint("Vertical", 0))
sketch13.addConstraint(Sketcher.Constraint("Horizontal", 1))
sketch13.addConstraint(Sketcher.Constraint("Vertical", 2))
sketch13.addConstraint(Sketcher.Constraint("Horizontal", 3))
sketch13.addConstraint(Sketcher.Constraint("Vertical", 4))
sketch13.addConstraint(Sketcher.Constraint("Horizontal", 5))
sketch13.addConstraint(Sketcher.Constraint("Vertical", 6))
sketch13.addConstraint(Sketcher.Constraint("Horizontal", 7))
sketch13.addConstraint(Sketcher.Constraint("PointOnObject", 6, 2, -1))
sketch13.addConstraint(Sketcher.Constraint("Equal", 5, 6))
sketch13.addConstraint(Sketcher.Constraint("DistanceX", 3, 2, 3, 1, Q("11 mm")))
sketch13.addConstraint(Sketcher.Constraint("DistanceX", 5, 1, 5, 2, Q("3 mm")))
sketch13.addConstraint(Sketcher.Constraint("DistanceY", 0, 1, 0, 2, Q("20 mm")))
sketch13.addConstraint(Sketcher.Constraint("DistanceY", 2, 2, 2, 1, Q("10 mm")))
sketch13.addConstraint(Sketcher.Constraint("DistanceX", 1, 2, 1, 1, Q("7.9 mm")))
sketch13.addConstraint(Sketcher.Constraint("DistanceX", -1, 1, 1, 2, Q("16 mm")))
pocket8 = body.newObject("PartDesign::Pocket", "Pocket007")
pocket8.Profile = sketch13
pocket8.Length = 4

sketch14 = body.newObject("Sketcher::SketchObject", "Sketch013")
sketch14.AttachmentSupport = (doc.getObject("XZ_Plane"), [""])
sketch14.MapMode = "FlatFace"
sketch14.AttachmentOffset = App.Placement(App.Vector(0, 0, -9), App.Rotation())
sketch14.addGeometry(Part.Circle(App.Vector(10.5, 15.5, 0), App.Vector(0, 0, 1), 3), False)
sketch14.addGeometry(Part.Circle(App.Vector(10.5, 35.5, 0), App.Vector(0, 0, 1), 3), False)
sketch14.addConstraint(Sketcher.Constraint("Equal", 0, 1))
sketch14.addConstraint(Sketcher.Constraint("Vertical", 0, 3, 1, 3))
sketch14.addConstraint(Sketcher.Constraint("Diameter", 0, Q("6 mm")))
sketch14.addConstraint(Sketcher.Constraint("DistanceY", 0, 3, 1, 3, Q("20 mm")))
sketch14.addConstraint(Sketcher.Constraint("DistanceX", -1, 1, 0, 3, Q("10.5 mm")))
sketch14.addConstraint(Sketcher.Constraint("DistanceY", -1, 1, 0, 3, Q("15.5 mm")))
pocket9 = body.newObject("PartDesign::Pocket", "Pocket008")
pocket9.Profile = sketch14
pocket9.Length = 8

doc.recompute()
